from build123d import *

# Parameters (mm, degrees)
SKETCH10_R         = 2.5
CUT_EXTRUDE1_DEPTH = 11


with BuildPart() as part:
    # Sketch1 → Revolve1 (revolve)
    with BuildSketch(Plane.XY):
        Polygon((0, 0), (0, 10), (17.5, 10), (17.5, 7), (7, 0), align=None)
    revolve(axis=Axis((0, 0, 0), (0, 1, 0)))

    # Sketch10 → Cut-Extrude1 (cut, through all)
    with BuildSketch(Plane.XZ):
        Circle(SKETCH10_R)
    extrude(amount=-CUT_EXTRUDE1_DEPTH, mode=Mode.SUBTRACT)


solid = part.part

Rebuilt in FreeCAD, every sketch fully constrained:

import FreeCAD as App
import Part
import Sketcher
from FreeCAD import Vector
Q = App.Units.Quantity

doc = App.newDocument("Part")
body = doc.addObject("PartDesign::Body", "Body")

# Sketch on XY plane
sketch1 = body.newObject("Sketcher::SketchObject", "Sketch")
sketch1.AttachmentSupport = (doc.getObject("XY_Plane"), [""])
sketch1.MapMode = "FlatFace"
sketch1.addGeometry([
    Part.LineSegment(Vector(0, 10, 0), Vector(0, 0, 0)),  # 0
    Part.LineSegment(Vector(0, 0, 0), Vector(7, 0, 0)),  # 1
    Part.LineSegment(Vector(7, 0, 0), Vector(17.5, 7, 0)),  # 2
    Part.LineSegment(Vector(17.5, 7, 0), Vector(17.5, 10, 0)),  # 3
    Part.LineSegment(Vector(17.5, 10, 0), Vector(0, 10, 0)),  # 4
], False)
sketch1.addConstraint([
    Sketcher.Constraint("Coincident", 0, 2, 1, 1),
    Sketcher.Constraint("Coincident", 1, 2, 2, 1),
    Sketcher.Constraint("Coincident", 2, 2, 3, 1),
    Sketcher.Constraint("Coincident", 3, 2, 4, 1),
    Sketcher.Constraint("Coincident", 4, 2, 0, 1),
    Sketcher.Constraint("Vertical", 0),
    Sketcher.Constraint("Horizontal", 1),
    Sketcher.Constraint("Vertical", 3),
    Sketcher.Constraint("Horizontal", 4),
    Sketcher.Constraint("Coincident", 0, 2, -1, 1),
    Sketcher.Constraint("DistanceX", 1, 1, 1, 2, Q("7 mm")),
    Sketcher.Constraint("DistanceY", 0, 2, 0, 1, Q("10 mm")),
    Sketcher.Constraint("DistanceY", 3, 1, 3, 2, Q("3 mm")),
    Sketcher.Constraint("DistanceX", 4, 2, 4, 1, Q("17.5 mm")),
])
revolution = body.newObject("PartDesign::Revolution", "Revolution")
revolution.Profile = sketch1
revolution.ReferenceAxis = (sketch1, ["V_Axis"])
revolution.Angle = 360

# Sketch on XZ plane
sketch2 = body.newObject("Sketcher::SketchObject", "Sketch001")
sketch2.AttachmentSupport = (doc.getObject("XZ_Plane"), [""])
sketch2.MapMode = "FlatFace"
sketch2.addGeometry(Part.Circle(Vector(0, 0, 0), Vector(0, 0, 1), 2.5), False)
sketch2.addConstraint([
    Sketcher.Constraint("Coincident", 0, 3, -1, 1),
    Sketcher.Constraint("Diameter", 0, Q("5 mm")),
])
pocket1 = body.newObject("PartDesign::Pocket", "Pocket")
pocket1.Profile = sketch2
pocket1.Type = "ThroughAll"

doc.recompute()
